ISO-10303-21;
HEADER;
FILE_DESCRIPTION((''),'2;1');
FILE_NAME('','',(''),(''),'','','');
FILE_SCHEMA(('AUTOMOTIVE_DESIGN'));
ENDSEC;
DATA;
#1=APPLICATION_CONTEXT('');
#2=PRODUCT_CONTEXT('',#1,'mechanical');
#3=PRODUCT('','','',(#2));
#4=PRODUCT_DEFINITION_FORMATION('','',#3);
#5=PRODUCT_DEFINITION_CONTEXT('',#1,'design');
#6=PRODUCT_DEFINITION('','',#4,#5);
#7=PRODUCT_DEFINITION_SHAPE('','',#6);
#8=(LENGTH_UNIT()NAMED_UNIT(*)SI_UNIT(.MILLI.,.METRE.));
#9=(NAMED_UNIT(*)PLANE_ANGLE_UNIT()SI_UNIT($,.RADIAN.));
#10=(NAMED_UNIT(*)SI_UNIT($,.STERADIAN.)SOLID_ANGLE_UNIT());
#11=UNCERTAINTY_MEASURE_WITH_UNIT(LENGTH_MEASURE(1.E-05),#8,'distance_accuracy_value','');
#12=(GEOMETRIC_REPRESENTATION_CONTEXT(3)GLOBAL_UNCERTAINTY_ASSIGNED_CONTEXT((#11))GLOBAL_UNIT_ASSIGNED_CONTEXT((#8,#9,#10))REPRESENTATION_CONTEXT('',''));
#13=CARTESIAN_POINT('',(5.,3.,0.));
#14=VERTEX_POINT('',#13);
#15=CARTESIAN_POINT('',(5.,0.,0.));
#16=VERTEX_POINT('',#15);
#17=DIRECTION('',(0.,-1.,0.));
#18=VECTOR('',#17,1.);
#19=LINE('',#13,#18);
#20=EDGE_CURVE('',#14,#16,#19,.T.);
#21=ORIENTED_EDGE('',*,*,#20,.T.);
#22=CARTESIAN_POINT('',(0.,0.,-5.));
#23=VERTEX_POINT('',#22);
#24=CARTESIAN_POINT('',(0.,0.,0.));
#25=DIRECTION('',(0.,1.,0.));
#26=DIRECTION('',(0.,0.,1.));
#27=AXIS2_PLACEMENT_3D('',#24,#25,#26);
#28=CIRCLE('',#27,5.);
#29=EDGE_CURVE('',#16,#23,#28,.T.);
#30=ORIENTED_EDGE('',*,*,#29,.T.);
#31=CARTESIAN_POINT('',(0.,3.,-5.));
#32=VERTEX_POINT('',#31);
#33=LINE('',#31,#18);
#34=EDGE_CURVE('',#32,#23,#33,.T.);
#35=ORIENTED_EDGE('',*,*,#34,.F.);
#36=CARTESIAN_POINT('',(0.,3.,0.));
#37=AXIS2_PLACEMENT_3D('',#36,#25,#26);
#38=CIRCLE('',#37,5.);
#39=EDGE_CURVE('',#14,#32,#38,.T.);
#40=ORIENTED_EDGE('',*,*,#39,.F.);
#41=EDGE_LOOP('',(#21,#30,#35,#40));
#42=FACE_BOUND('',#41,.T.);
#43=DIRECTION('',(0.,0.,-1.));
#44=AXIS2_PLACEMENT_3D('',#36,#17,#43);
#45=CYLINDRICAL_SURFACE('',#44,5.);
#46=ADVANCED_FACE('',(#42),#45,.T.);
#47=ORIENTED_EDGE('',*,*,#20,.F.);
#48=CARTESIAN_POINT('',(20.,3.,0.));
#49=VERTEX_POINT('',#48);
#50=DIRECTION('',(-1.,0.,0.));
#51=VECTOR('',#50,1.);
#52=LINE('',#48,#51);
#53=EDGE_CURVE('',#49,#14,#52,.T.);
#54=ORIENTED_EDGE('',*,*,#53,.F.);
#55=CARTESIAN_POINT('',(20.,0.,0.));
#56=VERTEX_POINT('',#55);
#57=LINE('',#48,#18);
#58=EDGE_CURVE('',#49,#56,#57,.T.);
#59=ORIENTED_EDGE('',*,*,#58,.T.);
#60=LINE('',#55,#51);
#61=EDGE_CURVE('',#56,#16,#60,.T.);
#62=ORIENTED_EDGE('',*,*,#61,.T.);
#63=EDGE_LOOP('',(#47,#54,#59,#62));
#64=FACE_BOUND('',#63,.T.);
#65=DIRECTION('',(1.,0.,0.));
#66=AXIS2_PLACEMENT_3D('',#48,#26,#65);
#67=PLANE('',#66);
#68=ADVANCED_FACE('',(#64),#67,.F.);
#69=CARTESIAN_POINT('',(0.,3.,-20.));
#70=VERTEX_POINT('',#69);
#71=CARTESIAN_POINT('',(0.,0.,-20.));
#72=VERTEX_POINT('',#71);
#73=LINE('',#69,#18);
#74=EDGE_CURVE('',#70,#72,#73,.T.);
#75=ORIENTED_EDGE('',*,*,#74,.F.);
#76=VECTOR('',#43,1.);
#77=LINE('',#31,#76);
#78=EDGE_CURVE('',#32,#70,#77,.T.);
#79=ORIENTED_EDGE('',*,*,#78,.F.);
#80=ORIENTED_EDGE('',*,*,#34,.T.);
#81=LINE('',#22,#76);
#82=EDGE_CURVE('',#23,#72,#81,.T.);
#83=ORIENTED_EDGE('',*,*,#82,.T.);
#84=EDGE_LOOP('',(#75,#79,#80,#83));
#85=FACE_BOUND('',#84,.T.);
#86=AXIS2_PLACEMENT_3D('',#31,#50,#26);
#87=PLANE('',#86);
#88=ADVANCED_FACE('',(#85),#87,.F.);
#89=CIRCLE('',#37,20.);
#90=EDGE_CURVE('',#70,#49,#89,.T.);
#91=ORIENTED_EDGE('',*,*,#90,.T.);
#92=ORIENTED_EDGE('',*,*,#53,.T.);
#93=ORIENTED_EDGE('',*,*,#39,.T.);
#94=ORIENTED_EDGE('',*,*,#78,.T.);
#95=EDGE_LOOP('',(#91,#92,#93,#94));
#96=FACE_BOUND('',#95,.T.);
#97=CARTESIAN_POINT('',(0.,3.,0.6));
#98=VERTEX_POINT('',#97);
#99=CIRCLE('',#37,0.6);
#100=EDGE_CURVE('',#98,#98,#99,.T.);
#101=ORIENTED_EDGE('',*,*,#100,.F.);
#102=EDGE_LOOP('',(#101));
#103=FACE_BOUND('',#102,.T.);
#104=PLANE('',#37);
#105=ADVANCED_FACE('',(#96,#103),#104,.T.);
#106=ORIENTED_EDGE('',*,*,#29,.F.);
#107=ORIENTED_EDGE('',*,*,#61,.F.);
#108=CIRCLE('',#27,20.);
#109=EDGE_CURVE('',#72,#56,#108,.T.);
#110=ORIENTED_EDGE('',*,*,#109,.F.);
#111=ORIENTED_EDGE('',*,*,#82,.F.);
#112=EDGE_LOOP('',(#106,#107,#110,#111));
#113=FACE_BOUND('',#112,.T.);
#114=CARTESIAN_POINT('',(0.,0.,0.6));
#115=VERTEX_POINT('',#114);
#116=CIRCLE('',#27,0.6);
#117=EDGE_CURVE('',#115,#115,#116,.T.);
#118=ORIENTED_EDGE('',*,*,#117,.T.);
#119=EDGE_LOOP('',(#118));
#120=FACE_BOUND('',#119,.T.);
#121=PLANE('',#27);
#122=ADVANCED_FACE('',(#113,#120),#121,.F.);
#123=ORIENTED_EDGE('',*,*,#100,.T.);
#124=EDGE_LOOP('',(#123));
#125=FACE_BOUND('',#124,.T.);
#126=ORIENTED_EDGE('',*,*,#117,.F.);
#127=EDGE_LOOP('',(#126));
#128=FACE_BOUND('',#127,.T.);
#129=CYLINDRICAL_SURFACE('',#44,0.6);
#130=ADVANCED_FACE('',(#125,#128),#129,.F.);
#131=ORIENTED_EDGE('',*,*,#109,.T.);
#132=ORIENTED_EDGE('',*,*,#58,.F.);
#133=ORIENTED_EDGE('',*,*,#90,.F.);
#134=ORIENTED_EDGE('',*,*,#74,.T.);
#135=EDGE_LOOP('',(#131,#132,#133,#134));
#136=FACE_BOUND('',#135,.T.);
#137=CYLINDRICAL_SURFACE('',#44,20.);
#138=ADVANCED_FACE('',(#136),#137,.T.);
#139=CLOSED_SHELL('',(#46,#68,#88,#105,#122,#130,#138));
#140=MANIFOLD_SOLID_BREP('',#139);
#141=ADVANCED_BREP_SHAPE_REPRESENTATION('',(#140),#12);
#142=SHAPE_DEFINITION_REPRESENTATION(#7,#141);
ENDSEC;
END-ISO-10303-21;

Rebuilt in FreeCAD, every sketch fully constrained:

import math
import FreeCAD as App
import Part
import Sketcher
Q = App.Units.Quantity

doc = App.newDocument("Part")
body = doc.addObject("PartDesign::Body", "Body")

sketch1 = body.newObject("Sketcher::SketchObject", "Sketch")
sketch1.AttachmentSupport = (doc.getObject("XZ_Plane"), [""])
sketch1.MapMode = "FlatFace"
sketch1.addGeometry(Part.LineSegment(App.Vector(0, -5, 0), App.Vector(0, -20, 0)), False)
sketch1.addGeometry(Part.ArcOfCircle(Part.Circle(App.Vector(0, 0, 0), App.Vector(0, 0, 1), 20), math.radians(0), math.radians(270)), False)
sketch1.addGeometry(Part.LineSegment(App.Vector(20, 0, 0), App.Vector(5, 0, 0)), False)
sketch1.addGeometry(Part.ArcOfCircle(Part.Circle(App.Vector(0, 0, 0), App.Vector(0, 0, 1), 5), math.radians(-90), math.radians(0)), False)
sketch1.addGeometry(Part.Circle(App.Vector(0, 0, 0), App.Vector(0, 0, 1), 0.6), False)
sketch1.addConstraint(Sketcher.Constraint("Coincident", 0, 2, 1, 2))
sketch1.addConstraint(Sketcher.Constraint("Coincident", 1, 1, 2, 1))
sketch1.addConstraint(Sketcher.Constraint("Coincident", 2, 2, 3, 2))
sketch1.addConstraint(Sketcher.Constraint("Coincident", 3, 1, 0, 1))
sketch1.addConstraint(Sketcher.Constraint("Vertical", 0))
sketch1.addConstraint(Sketcher.Constraint("Horizontal", 2))
sketch1.addConstraint(Sketcher.Constraint("Coincident", 1, 3, -1, 1))
sketch1.addConstraint(Sketcher.Constraint("Coincident", 3, 3, -1, 1))
sketch1.addConstraint(Sketcher.Constraint("Coincident", 4, 3, -1, 1))
sketch1.addConstraint(Sketcher.Constraint("PointOnObject", 0, 2, -2))
sketch1.addConstraint(Sketcher.Constraint("PointOnObject", 1, 1, -1))
sketch1.addConstraint(Sketcher.Constraint("Radius", 1, Q("20 mm")))
sketch1.addConstraint(Sketcher.Constraint("Radius", 3, Q("5 mm")))
sketch1.addConstraint(Sketcher.Constraint("Diameter", 4, Q("1.2 mm")))
pad1 = body.newObject("PartDesign::Pad", "Pad")
pad1.Profile = sketch1
pad1.Length = 3
pad1.Reversed = True

doc.recompute()
